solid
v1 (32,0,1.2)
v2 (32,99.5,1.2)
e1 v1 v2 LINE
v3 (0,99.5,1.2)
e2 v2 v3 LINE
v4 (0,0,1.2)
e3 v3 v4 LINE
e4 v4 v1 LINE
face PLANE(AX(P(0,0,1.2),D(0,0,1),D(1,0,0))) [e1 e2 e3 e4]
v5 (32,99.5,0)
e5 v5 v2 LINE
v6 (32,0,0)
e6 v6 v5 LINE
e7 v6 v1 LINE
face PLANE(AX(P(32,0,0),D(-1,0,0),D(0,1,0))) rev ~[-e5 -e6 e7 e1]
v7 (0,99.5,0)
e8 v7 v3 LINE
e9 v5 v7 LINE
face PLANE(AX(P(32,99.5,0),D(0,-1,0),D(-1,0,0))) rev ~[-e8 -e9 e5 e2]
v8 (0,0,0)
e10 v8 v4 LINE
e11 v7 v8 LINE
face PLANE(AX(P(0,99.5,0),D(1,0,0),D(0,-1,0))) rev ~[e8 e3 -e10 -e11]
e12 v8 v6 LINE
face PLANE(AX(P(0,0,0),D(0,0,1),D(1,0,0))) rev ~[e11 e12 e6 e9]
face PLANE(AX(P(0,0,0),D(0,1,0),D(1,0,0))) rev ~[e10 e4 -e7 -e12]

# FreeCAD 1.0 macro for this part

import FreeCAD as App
import Part
import Sketcher


def add_polygon(sketch, points):
    """Adds a closed chain of lines whose ends are joined by coincident constraints."""
    first, n = sketch.GeometryCount, len(points)
    for a, b in zip(points, points[1:] + points[:1]):
        sketch.addGeometry(Part.LineSegment(App.Vector(*a, 0), App.Vector(*b, 0)), False)
    for i in range(n):
        sketch.addConstraint(Sketcher.Constraint("Coincident", first + i, 2, first + (i + 1) % n, 1))

doc = App.newDocument("Part")
params = doc.addObject("Spreadsheet::Sheet", "Params")
for row, (alias, value) in enumerate([
    ("sketch1_width", "32 mm"),
    ("sketch1_height", "99.5 mm"),
    ("pad1_length", "1.2 mm"),
], start=1):
    params.set(f"A{row}", alias)
    params.set(f"B{row}", "=" + value)
    params.setAlias(f"B{row}", alias)

body = doc.addObject("PartDesign::Body", "Body")

# Sketch on XY plane
sketch1 = body.newObject("Sketcher::SketchObject", "Sketch")
sketch1.AttachmentSupport = (doc.getObject("XY_Plane"), [""])
sketch1.MapMode = "FlatFace"
add_polygon(sketch1, [(0, 99.5), (0, 0), (32, 0), (32, 99.5)])  # lines 0-3
sketch1.addConstraint(Sketcher.Constraint("Vertical", 0))
sketch1.addConstraint(Sketcher.Constraint("Horizontal", 1))
sketch1.addConstraint(Sketcher.Constraint("Vertical", 2))
sketch1.addConstraint(Sketcher.Constraint("Horizontal", 3))
sketch1.addConstraint(Sketcher.Constraint("Coincident", 0, 2, -1, 1))
sketch1.addConstraint(Sketcher.Constraint("DistanceX", 1, 1, 1, 2, 32.0))
sketch1.addConstraint(Sketcher.Constraint("DistanceY", 0, 2, 0, 1, 99.5))
sketch1.setExpression("Constraints[9]", "Params.sketch1_width")
sketch1.setExpression("Constraints[10]", "Params.sketch1_height")
pad1 = body.newObject("PartDesign::Pad", "Pad")
pad1.Profile = sketch1
pad1.setExpression("Length", "Params.pad1_length")

doc.recompute()
